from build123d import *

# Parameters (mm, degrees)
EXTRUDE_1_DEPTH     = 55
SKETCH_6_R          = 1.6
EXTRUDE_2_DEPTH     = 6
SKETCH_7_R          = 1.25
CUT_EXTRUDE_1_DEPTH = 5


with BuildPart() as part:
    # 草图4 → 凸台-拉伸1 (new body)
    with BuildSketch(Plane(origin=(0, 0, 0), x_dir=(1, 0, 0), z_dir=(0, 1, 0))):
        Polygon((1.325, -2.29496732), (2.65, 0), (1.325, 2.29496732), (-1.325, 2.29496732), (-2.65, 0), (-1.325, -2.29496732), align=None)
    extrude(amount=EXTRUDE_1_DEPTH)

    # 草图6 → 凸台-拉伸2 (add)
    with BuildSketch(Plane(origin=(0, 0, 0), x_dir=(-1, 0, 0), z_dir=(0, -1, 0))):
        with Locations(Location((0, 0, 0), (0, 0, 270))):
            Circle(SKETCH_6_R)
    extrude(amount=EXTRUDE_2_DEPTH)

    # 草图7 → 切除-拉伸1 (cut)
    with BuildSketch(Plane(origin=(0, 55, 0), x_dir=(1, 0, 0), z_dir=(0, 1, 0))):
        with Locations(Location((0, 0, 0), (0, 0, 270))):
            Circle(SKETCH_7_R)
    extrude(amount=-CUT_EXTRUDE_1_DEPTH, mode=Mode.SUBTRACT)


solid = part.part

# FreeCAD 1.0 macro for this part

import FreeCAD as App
import Part
import Sketcher

V = App.Vector
Q = App.Units.Quantity

doc = App.newDocument("Part")
body = doc.addObject("PartDesign::Body", "Body")

# Sketch on XZ plane
sketch1 = body.newObject("Sketcher::SketchObject", "Sketch")
sketch1.AttachmentSupport = (doc.getObject("XZ_Plane"), [""])
sketch1.MapMode = "FlatFace"
sketch1.addGeometry(Part.LineSegment(V(1.3, 2.3, 0), V(2.6, 0, 0)), False)
sketch1.addGeometry(Part.LineSegment(V(2.6, 0, 0), V(1.3, -2.3, 0)), False)
sketch1.addGeometry(Part.LineSegment(V(1.3, -2.3, 0), V(-1.3, -2.3, 0)), False)
sketch1.addGeometry(Part.LineSegment(V(-1.3, -2.3, 0), V(-2.6, 0, 0)), False)
sketch1.addGeometry(Part.LineSegment(V(-2.6, 0, 0), V(-1.3, 2.3, 0)), False)
sketch1.addGeometry(Part.LineSegment(V(-1.3, 2.3, 0), V(1.3, 2.3, 0)), False)
sketch1.addConstraint(Sketcher.Constraint("Coincident", 0, 2, 1, 1))
sketch1.addConstraint(Sketcher.Constraint("Coincident", 1, 2, 2, 1))
sketch1.addConstraint(Sketcher.Constraint("Coincident", 2, 2, 3, 1))
sketch1.addConstraint(Sketcher.Constraint("Coincident", 3, 2, 4, 1))
sketch1.addConstraint(Sketcher.Constraint("Coincident", 4, 2, 5, 1))
sketch1.addConstraint(Sketcher.Constraint("Coincident", 5, 2, 0, 1))
sketch1.addConstraint(Sketcher.Constraint("Horizontal", 2))
sketch1.addConstraint(Sketcher.Constraint("Horizontal", 5))
sketch1.addConstraint(Sketcher.Constraint("Symmetric", 0, 2, 3, 2, -1, 1))
sketch1.addConstraint(Sketcher.Constraint("Symmetric", 1, 2, 4, 2, -1, 1))
sketch1.addConstraint(Sketcher.Constraint("PointOnObject", 0, 2, -1))
sketch1.addConstraint(Sketcher.Constraint("Parallel", 0, 3))
sketch1.addConstraint(Sketcher.Constraint("Vertical", 2, 2, 4, 2))
sketch1.addConstraint(Sketcher.Constraint("Angle", 0, Q("-60 deg")))
sketch1.addConstraint(Sketcher.Constraint("DistanceX", 2, 2, 2, 1, Q("2.65 mm")))
sketch1.addConstraint(Sketcher.Constraint("DistanceX", 3, 2, 0, 2, Q("5.3 mm")))
pad1 = body.newObject("PartDesign::Pad", "Pad")
pad1.Profile = sketch1
pad1.Length = 55
pad1.Reversed = True

# Sketch on XZ plane
sketch2 = body.newObject("Sketcher::SketchObject", "Sketch001")
sketch2.AttachmentSupport = (doc.getObject("XZ_Plane"), [""])
sketch2.MapMode = "FlatFace"
sketch2.addGeometry(Part.Circle(V(0, 0, 0), V(0, 0, 1), 1.6), False)
sketch2.addConstraint(Sketcher.Constraint("Coincident", 0, 3, -1, 1))
sketch2.addConstraint(Sketcher.Constraint("Diameter", 0, Q("3.2 mm")))
pad2 = body.newObject("PartDesign::Pad", "Pad001")
pad2.Profile = sketch2
pad2.Length = 6

# Sketch on XZ plane
sketch3 = body.newObject("Sketcher::SketchObject", "Sketch002")
sketch3.AttachmentSupport = (doc.getObject("XZ_Plane"), [""])
sketch3.MapMode = "FlatFace"
sketch3.AttachmentOffset = App.Placement(V(0, 0, -55), App.Rotation())
sketch3.addGeometry(Part.Circle(V(0, 0, 0), V(0, 0, 1), 1.2), False)
sketch3.addConstraint(Sketcher.Constraint("Coincident", 0, 3, -1, 1))
sketch3.addConstraint(Sketcher.Constraint("Diameter", 0, Q("2.5 mm")))
pocket1 = body.newObject("PartDesign::Pocket", "Pocket")
pocket1.Profile = sketch3
pocket1.Length = 5
pocket1.Reversed = True

doc.recompute()
